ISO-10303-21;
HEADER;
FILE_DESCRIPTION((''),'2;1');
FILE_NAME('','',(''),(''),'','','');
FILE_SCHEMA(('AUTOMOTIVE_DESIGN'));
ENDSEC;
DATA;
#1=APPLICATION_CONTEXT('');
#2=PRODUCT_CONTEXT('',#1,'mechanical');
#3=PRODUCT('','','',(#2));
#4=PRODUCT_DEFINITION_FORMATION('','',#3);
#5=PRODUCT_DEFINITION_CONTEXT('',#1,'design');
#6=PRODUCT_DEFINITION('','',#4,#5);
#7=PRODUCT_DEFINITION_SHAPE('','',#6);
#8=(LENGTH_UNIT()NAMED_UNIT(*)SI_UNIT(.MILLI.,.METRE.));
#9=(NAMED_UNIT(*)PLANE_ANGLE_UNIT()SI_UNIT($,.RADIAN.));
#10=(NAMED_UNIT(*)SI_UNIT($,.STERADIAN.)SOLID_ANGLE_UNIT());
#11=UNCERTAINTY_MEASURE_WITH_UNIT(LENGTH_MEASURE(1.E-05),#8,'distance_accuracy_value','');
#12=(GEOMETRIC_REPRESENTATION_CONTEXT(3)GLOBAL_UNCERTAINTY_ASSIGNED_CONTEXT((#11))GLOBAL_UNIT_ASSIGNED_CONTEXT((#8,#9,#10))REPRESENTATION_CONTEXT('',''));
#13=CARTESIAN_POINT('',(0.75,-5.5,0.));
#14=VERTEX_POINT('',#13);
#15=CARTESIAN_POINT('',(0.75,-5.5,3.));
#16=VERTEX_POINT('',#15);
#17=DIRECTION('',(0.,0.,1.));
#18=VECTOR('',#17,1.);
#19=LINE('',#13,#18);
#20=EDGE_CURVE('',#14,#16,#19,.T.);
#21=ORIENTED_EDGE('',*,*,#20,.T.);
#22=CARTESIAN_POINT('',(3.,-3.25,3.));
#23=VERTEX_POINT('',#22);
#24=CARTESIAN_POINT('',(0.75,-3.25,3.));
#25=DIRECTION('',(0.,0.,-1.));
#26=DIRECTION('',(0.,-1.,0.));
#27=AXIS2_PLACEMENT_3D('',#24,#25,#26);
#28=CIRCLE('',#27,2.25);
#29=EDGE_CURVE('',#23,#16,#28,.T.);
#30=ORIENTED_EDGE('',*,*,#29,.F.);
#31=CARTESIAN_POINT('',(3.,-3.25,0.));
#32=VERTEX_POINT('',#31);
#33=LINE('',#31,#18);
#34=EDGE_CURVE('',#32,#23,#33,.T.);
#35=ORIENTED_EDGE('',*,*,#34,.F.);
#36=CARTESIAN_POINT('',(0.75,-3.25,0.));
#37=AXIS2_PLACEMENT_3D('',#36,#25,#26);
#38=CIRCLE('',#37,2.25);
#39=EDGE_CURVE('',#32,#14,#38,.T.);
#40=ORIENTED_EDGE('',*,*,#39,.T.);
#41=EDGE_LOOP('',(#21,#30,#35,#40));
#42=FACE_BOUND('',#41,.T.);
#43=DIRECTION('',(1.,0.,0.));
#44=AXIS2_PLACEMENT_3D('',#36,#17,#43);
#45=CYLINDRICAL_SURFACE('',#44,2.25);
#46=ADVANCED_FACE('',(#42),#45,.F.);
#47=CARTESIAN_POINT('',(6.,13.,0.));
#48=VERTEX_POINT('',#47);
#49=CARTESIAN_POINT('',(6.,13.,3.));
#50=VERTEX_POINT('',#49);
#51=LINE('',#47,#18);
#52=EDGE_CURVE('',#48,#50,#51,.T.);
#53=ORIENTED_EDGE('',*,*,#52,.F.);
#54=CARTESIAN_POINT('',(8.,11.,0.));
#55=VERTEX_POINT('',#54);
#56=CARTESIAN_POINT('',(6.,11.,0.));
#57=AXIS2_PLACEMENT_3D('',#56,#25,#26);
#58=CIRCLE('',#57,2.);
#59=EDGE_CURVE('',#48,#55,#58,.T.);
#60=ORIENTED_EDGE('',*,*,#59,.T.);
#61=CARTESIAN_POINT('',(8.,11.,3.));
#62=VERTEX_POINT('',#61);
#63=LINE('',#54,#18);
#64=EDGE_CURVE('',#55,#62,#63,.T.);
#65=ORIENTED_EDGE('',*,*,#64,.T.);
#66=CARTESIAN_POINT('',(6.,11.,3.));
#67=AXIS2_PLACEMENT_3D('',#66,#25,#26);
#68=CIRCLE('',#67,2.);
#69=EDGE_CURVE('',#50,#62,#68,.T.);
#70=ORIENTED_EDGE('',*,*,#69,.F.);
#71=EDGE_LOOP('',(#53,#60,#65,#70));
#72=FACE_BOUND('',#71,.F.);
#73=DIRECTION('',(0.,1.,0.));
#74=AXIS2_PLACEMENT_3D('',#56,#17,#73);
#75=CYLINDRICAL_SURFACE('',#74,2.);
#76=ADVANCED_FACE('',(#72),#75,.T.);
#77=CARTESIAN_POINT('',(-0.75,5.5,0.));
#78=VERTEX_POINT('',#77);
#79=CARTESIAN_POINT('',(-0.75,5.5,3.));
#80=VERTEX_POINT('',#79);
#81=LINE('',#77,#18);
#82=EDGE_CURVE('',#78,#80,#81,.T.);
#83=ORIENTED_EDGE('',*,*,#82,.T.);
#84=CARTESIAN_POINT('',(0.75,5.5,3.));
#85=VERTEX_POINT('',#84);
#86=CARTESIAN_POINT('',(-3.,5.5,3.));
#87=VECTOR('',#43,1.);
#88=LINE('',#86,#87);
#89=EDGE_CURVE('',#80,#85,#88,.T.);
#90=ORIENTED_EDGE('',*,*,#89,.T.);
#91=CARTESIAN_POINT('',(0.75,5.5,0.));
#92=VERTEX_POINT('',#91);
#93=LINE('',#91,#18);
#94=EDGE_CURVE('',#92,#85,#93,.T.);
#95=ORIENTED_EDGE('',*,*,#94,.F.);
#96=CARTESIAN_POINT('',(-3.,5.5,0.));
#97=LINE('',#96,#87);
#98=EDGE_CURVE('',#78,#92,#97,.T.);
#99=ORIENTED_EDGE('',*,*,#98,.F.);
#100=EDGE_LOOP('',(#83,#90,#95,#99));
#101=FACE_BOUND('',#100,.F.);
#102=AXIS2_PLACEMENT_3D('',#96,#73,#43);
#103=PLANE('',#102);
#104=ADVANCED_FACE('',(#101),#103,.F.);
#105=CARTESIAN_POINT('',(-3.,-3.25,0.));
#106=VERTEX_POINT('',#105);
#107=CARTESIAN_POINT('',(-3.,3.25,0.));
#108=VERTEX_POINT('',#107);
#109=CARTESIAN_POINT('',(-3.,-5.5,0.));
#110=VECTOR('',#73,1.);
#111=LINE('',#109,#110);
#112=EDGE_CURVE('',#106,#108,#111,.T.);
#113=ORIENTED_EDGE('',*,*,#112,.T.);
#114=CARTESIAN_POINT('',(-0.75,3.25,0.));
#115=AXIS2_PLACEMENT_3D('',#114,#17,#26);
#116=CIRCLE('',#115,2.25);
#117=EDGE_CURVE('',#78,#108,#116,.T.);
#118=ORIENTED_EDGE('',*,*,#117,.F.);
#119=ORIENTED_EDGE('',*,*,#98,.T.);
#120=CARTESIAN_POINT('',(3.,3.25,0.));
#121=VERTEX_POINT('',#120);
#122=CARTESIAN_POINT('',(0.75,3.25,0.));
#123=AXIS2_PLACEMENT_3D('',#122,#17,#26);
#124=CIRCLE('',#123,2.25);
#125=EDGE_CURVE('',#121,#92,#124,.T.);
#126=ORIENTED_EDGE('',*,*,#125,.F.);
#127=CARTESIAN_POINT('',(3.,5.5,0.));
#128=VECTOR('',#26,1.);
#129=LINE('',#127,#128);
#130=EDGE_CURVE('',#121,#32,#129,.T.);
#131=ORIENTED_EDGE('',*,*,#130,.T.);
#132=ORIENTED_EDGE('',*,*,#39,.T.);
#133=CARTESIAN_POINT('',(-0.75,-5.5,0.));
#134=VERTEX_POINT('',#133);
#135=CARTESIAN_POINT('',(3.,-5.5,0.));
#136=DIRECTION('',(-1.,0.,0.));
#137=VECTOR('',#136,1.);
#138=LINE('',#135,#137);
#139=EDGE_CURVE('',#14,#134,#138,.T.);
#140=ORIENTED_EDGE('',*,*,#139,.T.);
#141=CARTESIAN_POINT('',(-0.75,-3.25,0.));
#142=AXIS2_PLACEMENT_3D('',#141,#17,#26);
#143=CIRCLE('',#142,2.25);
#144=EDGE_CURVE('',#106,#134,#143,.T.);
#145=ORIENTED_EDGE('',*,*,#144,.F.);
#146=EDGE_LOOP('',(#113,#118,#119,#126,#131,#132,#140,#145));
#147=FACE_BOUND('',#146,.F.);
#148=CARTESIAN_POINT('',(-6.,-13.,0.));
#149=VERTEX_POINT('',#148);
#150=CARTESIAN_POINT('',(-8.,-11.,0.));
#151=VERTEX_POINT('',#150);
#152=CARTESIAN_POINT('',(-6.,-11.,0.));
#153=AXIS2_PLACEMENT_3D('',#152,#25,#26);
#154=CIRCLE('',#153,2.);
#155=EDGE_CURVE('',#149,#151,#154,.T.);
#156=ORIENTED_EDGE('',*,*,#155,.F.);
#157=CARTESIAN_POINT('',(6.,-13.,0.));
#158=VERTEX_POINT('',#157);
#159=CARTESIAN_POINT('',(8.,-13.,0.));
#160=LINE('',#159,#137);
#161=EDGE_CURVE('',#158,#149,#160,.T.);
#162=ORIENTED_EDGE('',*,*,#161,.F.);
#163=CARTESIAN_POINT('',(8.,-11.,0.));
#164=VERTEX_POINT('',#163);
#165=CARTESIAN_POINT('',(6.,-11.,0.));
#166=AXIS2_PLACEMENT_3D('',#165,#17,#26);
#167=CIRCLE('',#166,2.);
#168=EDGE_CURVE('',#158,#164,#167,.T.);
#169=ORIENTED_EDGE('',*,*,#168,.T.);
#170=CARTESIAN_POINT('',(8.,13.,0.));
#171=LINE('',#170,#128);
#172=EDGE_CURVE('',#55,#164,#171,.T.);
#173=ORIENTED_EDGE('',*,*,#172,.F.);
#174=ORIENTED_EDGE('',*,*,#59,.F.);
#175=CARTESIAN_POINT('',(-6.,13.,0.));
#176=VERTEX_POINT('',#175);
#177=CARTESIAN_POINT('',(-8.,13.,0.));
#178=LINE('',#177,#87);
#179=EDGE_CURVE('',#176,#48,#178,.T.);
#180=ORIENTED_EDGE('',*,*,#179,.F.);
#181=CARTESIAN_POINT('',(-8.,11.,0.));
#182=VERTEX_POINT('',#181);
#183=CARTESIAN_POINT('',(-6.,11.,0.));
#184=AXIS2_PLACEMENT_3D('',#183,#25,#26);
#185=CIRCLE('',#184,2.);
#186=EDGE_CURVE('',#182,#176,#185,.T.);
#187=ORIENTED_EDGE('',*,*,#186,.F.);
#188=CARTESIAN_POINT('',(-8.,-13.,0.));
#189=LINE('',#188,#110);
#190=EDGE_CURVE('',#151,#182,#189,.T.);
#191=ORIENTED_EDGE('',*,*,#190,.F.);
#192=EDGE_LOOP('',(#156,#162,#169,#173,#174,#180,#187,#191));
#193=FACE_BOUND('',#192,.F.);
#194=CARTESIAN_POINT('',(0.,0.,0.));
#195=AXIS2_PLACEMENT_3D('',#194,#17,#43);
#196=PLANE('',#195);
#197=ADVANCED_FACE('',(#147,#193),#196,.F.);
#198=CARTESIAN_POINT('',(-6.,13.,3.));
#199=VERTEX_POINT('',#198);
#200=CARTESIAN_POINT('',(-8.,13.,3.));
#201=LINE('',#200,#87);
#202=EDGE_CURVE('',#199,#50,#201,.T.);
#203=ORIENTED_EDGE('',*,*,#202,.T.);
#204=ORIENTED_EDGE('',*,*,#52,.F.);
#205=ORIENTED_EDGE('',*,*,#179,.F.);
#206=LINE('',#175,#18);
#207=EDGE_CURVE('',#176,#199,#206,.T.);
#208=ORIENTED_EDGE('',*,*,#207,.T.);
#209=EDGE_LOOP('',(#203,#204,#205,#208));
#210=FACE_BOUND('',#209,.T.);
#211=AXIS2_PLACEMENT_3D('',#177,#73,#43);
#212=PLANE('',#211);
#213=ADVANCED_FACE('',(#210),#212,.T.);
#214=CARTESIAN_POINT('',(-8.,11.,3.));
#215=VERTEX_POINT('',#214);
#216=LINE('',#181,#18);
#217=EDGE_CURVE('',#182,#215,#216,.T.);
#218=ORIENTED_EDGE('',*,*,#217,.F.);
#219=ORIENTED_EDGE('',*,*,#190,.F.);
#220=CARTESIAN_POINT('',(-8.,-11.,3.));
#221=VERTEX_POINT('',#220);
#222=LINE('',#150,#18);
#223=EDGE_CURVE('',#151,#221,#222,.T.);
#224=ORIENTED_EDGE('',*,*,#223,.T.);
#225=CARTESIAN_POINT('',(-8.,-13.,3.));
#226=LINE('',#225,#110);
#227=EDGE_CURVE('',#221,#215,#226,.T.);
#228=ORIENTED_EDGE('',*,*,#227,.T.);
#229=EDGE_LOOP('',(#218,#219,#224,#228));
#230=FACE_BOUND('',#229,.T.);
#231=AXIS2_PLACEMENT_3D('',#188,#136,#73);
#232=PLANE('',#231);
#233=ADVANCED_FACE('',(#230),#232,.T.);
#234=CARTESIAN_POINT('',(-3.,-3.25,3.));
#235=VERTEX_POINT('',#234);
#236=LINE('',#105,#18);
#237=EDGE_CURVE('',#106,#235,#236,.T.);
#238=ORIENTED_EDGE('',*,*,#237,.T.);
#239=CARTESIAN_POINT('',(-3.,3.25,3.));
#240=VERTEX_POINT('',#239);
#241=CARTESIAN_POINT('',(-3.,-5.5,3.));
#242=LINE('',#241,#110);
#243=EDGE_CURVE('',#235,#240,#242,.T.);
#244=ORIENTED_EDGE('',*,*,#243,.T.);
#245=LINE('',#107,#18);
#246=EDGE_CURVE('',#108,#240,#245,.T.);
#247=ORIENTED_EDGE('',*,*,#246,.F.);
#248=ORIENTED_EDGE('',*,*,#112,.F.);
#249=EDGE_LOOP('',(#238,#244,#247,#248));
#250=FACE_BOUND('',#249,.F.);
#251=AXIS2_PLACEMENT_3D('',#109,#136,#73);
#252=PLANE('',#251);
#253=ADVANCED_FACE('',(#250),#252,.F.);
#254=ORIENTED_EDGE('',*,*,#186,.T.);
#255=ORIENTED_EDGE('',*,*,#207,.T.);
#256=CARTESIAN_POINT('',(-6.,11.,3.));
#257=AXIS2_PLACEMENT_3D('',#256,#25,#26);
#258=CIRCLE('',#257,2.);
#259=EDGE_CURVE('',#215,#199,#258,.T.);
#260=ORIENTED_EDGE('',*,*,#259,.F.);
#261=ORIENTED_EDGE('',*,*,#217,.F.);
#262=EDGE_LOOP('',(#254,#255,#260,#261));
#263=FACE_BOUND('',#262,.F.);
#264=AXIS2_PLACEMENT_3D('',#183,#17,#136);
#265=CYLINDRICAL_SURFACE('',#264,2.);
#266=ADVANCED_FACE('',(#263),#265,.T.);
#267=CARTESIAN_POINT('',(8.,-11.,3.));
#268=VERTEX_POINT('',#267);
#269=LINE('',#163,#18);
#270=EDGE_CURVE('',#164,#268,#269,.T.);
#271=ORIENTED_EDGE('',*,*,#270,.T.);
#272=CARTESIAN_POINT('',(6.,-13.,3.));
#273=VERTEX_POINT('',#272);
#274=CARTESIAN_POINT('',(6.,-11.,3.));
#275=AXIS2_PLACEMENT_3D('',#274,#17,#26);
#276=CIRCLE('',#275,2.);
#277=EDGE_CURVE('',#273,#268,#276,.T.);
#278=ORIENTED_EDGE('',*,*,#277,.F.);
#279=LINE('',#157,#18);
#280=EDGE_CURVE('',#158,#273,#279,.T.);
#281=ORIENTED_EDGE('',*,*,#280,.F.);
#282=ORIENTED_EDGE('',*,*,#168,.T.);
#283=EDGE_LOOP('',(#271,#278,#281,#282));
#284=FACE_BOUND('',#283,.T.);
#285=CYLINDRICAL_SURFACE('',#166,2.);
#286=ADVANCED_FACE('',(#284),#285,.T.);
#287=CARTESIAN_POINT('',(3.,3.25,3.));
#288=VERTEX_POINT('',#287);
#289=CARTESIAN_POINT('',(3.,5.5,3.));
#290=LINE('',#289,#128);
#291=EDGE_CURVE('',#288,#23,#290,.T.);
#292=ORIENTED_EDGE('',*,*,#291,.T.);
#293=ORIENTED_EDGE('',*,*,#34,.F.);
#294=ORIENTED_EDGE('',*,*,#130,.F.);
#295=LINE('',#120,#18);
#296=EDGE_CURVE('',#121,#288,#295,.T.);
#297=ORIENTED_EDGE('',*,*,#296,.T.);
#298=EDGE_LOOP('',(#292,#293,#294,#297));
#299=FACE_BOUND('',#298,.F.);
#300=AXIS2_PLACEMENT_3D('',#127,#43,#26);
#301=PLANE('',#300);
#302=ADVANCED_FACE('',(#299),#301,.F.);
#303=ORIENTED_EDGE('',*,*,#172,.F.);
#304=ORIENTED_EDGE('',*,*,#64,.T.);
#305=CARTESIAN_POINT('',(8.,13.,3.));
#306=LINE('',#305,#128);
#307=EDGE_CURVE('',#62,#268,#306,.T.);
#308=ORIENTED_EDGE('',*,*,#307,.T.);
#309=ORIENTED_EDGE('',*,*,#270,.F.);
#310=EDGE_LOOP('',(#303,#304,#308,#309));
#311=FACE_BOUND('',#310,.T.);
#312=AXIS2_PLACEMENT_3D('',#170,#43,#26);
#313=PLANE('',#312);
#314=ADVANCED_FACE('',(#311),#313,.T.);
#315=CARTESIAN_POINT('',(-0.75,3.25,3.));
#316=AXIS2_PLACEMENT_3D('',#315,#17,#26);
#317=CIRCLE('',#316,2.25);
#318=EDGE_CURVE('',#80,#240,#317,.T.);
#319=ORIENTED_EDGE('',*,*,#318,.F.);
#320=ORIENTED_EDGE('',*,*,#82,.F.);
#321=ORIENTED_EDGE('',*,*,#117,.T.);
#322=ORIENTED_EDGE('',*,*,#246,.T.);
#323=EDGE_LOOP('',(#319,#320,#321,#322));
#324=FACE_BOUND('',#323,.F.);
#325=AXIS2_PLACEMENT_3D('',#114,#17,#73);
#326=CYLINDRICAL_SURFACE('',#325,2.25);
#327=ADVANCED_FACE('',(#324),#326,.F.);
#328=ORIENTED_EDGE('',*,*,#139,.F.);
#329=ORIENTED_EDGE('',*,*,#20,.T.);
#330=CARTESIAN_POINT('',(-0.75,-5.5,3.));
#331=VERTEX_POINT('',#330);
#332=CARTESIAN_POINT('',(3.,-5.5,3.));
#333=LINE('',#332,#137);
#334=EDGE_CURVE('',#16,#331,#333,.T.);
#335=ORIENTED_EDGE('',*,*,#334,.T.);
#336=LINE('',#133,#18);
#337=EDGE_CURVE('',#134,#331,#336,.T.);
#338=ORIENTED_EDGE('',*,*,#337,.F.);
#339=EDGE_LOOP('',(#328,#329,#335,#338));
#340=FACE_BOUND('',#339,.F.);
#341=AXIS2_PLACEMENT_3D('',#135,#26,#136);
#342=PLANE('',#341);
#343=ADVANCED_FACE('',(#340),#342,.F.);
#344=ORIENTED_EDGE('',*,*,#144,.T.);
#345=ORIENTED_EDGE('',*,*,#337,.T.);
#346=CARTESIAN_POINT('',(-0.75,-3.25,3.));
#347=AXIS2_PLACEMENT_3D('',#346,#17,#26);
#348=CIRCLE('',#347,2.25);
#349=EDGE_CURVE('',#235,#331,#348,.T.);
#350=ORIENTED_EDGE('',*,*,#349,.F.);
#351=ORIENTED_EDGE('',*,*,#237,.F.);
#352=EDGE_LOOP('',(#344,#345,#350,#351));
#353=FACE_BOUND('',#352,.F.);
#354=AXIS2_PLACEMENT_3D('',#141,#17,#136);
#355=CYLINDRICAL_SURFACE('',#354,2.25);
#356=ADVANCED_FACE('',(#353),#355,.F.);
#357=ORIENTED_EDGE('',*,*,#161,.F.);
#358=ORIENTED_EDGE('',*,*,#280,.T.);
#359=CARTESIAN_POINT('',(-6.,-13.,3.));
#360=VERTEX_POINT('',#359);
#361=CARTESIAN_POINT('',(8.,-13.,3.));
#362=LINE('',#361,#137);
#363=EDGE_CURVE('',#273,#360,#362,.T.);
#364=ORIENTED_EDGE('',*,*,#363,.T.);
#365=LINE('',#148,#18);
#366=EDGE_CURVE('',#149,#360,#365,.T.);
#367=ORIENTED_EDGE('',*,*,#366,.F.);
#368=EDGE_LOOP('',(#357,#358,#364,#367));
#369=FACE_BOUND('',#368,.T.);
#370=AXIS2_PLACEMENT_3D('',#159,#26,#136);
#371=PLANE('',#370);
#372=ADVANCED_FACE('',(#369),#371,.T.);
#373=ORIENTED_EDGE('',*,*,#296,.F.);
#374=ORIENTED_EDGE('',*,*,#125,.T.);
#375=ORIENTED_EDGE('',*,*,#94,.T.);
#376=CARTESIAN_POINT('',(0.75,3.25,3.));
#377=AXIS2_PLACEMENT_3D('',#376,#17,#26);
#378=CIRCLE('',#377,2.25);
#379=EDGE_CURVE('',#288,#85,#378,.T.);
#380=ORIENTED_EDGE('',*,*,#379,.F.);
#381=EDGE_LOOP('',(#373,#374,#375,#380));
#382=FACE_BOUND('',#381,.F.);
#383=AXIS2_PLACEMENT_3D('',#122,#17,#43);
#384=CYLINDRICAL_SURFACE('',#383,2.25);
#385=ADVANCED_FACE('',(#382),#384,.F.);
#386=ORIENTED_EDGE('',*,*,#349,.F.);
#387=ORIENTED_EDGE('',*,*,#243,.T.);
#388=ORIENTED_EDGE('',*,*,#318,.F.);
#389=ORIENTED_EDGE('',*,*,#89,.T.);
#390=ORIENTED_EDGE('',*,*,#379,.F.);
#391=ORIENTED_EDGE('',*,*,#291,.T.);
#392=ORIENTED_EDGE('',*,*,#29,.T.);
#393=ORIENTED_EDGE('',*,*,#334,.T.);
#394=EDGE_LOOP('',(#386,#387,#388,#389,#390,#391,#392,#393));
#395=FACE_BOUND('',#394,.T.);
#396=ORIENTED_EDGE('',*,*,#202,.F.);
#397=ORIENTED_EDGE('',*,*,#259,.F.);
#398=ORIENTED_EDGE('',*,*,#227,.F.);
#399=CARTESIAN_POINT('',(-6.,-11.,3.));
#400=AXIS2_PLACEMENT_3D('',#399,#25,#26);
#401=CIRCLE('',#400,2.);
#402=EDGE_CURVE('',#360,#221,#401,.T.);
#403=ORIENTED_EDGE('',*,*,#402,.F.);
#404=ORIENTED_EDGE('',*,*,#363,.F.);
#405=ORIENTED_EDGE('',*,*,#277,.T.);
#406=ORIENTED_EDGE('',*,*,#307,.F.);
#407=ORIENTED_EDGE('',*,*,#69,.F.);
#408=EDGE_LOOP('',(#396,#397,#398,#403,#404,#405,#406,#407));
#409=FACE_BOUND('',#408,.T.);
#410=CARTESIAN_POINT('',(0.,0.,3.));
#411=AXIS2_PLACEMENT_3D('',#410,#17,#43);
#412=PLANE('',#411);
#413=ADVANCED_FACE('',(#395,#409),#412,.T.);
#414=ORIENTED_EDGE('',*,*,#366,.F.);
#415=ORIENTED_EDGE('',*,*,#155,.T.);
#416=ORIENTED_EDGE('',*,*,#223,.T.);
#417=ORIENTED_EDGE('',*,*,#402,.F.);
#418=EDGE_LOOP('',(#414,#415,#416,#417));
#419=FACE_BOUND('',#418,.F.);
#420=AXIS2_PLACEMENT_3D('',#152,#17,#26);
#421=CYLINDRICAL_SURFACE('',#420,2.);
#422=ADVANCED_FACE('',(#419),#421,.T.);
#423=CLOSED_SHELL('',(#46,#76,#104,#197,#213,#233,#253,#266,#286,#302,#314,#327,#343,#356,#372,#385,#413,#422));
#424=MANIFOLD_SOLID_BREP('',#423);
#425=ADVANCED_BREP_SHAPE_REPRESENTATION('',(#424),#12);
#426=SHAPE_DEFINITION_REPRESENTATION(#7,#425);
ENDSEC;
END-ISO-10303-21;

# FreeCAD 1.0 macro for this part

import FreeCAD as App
import Part
import Sketcher

V = App.Vector
Q = App.Units.Quantity


def edges_at(feature, points):
    """Names of the edges that pass closest to the given points."""
    edges = feature.Shape.Edges
    near = lambda p: min(range(len(edges)), key=lambda i: edges[i].distToShape(Part.Vertex(*p))[0])
    return sorted({f"Edge{near(p) + 1}" for p in points})


def add_polygon(sketch, points):
    """Adds a closed chain of lines whose ends are joined by coincident constraints."""
    first, n = sketch.GeometryCount, len(points)
    for a, b in zip(points, points[1:] + points[:1]):
        sketch.addGeometry(Part.LineSegment(App.Vector(*a, 0), App.Vector(*b, 0)), False)
    for i in range(n):
        sketch.addConstraint(Sketcher.Constraint("Coincident", first + i, 2, first + (i + 1) % n, 1))

doc = App.newDocument("Part")
body = doc.addObject("PartDesign::Body", "Body")

sketch1 = body.newObject("Sketcher::SketchObject", "Sketch")
sketch1.AttachmentSupport = (doc.getObject("XY_Plane"), [""])
sketch1.MapMode = "FlatFace"
add_polygon(sketch1, [(-8, -13), (8, -13), (8, 13), (-8, 13)])
add_polygon(sketch1, [(3, 6), (3, -6), (-3, -6), (-3, 6)])
sketch1.addConstraint([
    Sketcher.Constraint("Horizontal", 0),
    Sketcher.Constraint("Vertical", 1),
    Sketcher.Constraint("Horizontal", 2),
    Sketcher.Constraint("Vertical", 3),
    Sketcher.Constraint("Vertical", 4),
    Sketcher.Constraint("Horizontal", 5),
    Sketcher.Constraint("Vertical", 6),
    Sketcher.Constraint("Horizontal", 7),
    Sketcher.Constraint("Symmetric", 0, 2, 2, 2, -1, 1),
    Sketcher.Constraint("Symmetric", 4, 2, 6, 2, -1, 1),
    Sketcher.Constraint("DistanceX", 0, 1, 0, 2, Q("16 mm")),
    Sketcher.Constraint("DistanceX", 5, 2, 5, 1, Q("6 mm")),
    Sketcher.Constraint("DistanceY", 1, 1, 1, 2, Q("26 mm")),
    Sketcher.Constraint("DistanceY", 4, 2, 4, 1, Q("11 mm")),
])
pad1 = body.newObject("PartDesign::Pad", "Pad")
pad1.Profile = sketch1
pad1.Length = 3
doc.recompute()

fillet = body.newObject("PartDesign::Fillet", "Fillet")
fillet.Base = (pad1, edges_at(pad1, [
    (8, 13, 1.5),
    (-8, 13, 1.5),
    (-8, -13, 1.5),
    (8, -13, 1.5),
]))
fillet.Radius = 2
doc.recompute()

fillet2 = body.newObject("PartDesign::Fillet", "Fillet001")
fillet2.Base = (fillet, edges_at(fillet, [
    (-3, 5.5, 1.5),
    (3, 5.5, 1.5),
    (3, -5.5, 1.5),
    (-3, -5.5, 1.5),
]))
fillet2.Radius = 2.25

doc.recompute()
